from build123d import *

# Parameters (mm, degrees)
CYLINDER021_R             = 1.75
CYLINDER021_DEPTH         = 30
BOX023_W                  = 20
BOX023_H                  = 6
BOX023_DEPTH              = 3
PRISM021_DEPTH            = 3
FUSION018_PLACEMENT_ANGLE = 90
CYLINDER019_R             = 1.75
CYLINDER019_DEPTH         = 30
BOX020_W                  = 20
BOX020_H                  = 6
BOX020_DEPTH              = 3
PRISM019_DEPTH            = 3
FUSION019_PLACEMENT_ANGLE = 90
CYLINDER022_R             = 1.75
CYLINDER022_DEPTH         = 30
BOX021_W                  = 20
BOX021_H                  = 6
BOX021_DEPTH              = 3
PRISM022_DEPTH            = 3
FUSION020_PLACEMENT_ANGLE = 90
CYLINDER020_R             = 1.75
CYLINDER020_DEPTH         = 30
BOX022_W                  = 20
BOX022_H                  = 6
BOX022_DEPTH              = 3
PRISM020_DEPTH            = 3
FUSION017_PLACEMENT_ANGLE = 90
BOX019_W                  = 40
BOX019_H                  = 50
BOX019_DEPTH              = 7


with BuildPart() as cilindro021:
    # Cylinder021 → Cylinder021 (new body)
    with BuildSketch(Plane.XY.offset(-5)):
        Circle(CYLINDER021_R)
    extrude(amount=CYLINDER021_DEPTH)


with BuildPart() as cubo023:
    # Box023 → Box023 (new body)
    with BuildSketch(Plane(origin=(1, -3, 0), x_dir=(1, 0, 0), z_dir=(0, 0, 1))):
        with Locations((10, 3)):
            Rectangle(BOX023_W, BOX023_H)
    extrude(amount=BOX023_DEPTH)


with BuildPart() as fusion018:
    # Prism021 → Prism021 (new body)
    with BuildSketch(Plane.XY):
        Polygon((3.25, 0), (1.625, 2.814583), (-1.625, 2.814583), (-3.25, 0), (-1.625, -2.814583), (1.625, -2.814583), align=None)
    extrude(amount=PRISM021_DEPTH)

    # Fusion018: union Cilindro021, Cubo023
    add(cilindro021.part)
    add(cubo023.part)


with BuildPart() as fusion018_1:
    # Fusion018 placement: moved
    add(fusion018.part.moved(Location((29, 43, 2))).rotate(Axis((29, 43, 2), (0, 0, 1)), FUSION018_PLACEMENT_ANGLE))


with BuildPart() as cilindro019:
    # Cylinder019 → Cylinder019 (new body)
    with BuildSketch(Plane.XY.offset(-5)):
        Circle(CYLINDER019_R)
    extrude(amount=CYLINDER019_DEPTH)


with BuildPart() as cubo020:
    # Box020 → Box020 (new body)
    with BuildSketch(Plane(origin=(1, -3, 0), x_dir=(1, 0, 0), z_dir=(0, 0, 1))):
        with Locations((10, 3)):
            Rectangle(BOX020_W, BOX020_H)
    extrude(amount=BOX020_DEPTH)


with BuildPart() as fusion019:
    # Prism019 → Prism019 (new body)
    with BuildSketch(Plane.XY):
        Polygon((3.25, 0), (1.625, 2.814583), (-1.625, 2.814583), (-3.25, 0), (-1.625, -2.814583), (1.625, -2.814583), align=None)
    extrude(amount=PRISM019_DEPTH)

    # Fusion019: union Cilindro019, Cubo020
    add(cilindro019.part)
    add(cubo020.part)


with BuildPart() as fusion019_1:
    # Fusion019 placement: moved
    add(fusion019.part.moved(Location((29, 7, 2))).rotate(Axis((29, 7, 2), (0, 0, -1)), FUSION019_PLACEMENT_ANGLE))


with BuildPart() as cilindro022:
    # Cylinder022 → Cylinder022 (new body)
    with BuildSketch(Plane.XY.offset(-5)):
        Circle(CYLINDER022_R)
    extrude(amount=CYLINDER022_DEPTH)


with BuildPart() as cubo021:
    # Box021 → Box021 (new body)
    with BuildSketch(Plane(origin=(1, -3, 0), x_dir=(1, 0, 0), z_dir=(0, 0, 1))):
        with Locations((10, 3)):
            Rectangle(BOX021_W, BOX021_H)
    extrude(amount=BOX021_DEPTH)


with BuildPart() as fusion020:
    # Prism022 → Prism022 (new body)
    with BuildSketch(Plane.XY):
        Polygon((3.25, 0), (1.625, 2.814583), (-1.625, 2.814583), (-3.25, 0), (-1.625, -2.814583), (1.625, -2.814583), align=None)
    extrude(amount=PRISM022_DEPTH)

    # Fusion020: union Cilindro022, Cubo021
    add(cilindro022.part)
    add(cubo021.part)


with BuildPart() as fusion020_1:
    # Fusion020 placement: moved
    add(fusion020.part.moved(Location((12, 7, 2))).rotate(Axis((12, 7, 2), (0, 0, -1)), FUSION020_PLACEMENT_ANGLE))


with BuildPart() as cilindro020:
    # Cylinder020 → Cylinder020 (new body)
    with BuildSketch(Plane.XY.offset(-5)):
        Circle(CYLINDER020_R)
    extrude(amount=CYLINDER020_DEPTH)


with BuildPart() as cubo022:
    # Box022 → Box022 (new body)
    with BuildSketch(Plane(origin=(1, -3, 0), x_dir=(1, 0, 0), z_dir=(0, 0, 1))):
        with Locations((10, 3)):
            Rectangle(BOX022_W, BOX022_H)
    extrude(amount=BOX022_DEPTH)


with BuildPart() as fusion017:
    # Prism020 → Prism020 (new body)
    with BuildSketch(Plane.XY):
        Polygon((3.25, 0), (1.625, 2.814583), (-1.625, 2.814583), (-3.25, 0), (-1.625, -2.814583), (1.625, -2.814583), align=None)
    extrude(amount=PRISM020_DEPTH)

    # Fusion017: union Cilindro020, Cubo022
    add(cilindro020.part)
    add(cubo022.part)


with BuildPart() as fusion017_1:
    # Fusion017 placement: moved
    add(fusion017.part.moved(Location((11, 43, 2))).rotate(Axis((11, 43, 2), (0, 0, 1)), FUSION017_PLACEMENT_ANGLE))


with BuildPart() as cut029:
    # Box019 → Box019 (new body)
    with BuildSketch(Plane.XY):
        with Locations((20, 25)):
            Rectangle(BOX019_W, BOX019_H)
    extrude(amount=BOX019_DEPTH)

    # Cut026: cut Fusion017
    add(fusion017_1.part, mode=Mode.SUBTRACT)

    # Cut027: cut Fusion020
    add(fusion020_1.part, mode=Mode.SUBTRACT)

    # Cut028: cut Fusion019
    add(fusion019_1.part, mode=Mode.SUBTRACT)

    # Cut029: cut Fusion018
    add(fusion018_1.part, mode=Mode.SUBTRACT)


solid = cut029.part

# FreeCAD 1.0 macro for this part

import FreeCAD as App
import Part
import Sketcher
Q = App.Units.Quantity


def add_polygon(sketch, points):
    """Adds a closed chain of lines whose ends are joined by coincident constraints."""
    first, n = sketch.GeometryCount, len(points)
    for a, b in zip(points, points[1:] + points[:1]):
        sketch.addGeometry(Part.LineSegment(App.Vector(*a, 0), App.Vector(*b, 0)), False)
    for i in range(n):
        sketch.addConstraint(Sketcher.Constraint("Coincident", first + i, 2, first + (i + 1) % n, 1))

doc = App.newDocument("Part")
body = doc.addObject("PartDesign::Body", "Body")

# Sketch on XY plane
sketch1 = body.newObject("Sketcher::SketchObject", "Sketch")
sketch1.AttachmentSupport = (doc.getObject("XY_Plane"), [""])
sketch1.MapMode = "FlatFace"
sketch1.AttachmentOffset = App.Placement(App.Vector(0, 0, -5), App.Rotation())
sketch1.addGeometry(Part.Circle(App.Vector(0, 0, 0), App.Vector(0, 0, 1), 1.8), False)
sketch1.addConstraint(Sketcher.Constraint("Coincident", 0, 3, -1, 1))
sketch1.addConstraint(Sketcher.Constraint("Diameter", 0, 3.5))
pad1 = body.newObject("PartDesign::Pad", "Pad")
pad1.Profile = sketch1
pad1.Length = 30
body2 = doc.addObject("PartDesign::Body", "Body001")

# Sketch on XY plane
sketch2 = body2.newObject("Sketcher::SketchObject", "Sketch001")
sketch2.AttachmentSupport = (doc.getObject("XY_Plane001"), [""])
sketch2.MapMode = "FlatFace"
add_polygon(sketch2, [(1, 3), (1, -3), (21, -3), (21, 3)])  # lines 0-3
sketch2.addConstraint(Sketcher.Constraint("Vertical", 0))
sketch2.addConstraint(Sketcher.Constraint("Horizontal", 1))
sketch2.addConstraint(Sketcher.Constraint("Vertical", 2))
sketch2.addConstraint(Sketcher.Constraint("Horizontal", 3))
sketch2.addConstraint(Sketcher.Constraint("DistanceX", 1, 1, 1, 2, 20.0))
sketch2.addConstraint(Sketcher.Constraint("DistanceY", 0, 2, 0, 1, 6.0))
sketch2.addConstraint(Sketcher.Constraint("DistanceX", -1, 1, 0, 2, 1.0))
sketch2.addConstraint(Sketcher.Constraint("DistanceY", 0, 2, -1, 1, 3.0))
pad2 = body2.newObject("PartDesign::Pad", "Pad001")
pad2.Profile = sketch2
pad2.Length = 3
body3 = doc.addObject("PartDesign::Body", "Body002")

# Sketch on XY plane
sketch3 = body3.newObject("Sketcher::SketchObject", "Sketch002")
sketch3.AttachmentSupport = (doc.getObject("XY_Plane002"), [""])
sketch3.MapMode = "FlatFace"
add_polygon(sketch3, [(3.2, 0), (1.6, 2.8), (-1.6, 2.8), (-3.2, 0), (-1.6, -2.8), (1.6, -2.8)])  # lines 0-5
sketch3.addConstraint(Sketcher.Constraint("Horizontal", 1))
sketch3.addConstraint(Sketcher.Constraint("Horizontal", 4))
sketch3.addConstraint(Sketcher.Constraint("Symmetric", 0, 2, 3, 2, -1, 1))
sketch3.addConstraint(Sketcher.Constraint("Symmetric", 2, 2, 5, 2, -1, 1))
sketch3.addConstraint(Sketcher.Constraint("PointOnObject", 2, 2, -1))
sketch3.addConstraint(Sketcher.Constraint("Parallel", 2, 5))
sketch3.addConstraint(Sketcher.Constraint("Vertical", 1, 2, 3, 2))
sketch3.addConstraint(Sketcher.Constraint("Angle", 0, Q("119.999996 deg")))
sketch3.addConstraint(Sketcher.Constraint("DistanceX", 1, 2, 1, 1, 3.25))
sketch3.addConstraint(Sketcher.Constraint("DistanceX", 2, 2, 5, 2, 6.5))
pad3 = body3.newObject("PartDesign::Pad", "Pad002")
pad3.Profile = sketch3
pad3.Length = 3
doc.recompute()

boolean = body3.newObject("PartDesign::Boolean", "Boolean")
boolean.Type = "Fuse"
boolean.addObjects([body])
doc.recompute()

boolean2 = body3.newObject("PartDesign::Boolean", "Boolean001")
boolean2.Type = "Fuse"
boolean2.addObjects([body2])
body4 = doc.addObject("PartDesign::Body", "Body003")
doc.recompute()

body3.Placement = App.Placement(App.Vector(29, 43, 2), App.Rotation(App.Vector(0, 0, 1), 90))
boolean3 = body4.newObject("PartDesign::Boolean", "Boolean002")
boolean3.Type = "Fuse"
boolean3.addObjects([body3])
body5 = doc.addObject("PartDesign::Body", "Body004")

# Sketch on XY plane
sketch4 = body5.newObject("Sketcher::SketchObject", "Sketch003")
sketch4.AttachmentSupport = (doc.getObject("XY_Plane004"), [""])
sketch4.MapMode = "FlatFace"
sketch4.AttachmentOffset = App.Placement(App.Vector(0, 0, -5), App.Rotation())
sketch4.addGeometry(Part.Circle(App.Vector(0, 0, 0), App.Vector(0, 0, 1), 1.8), False)
sketch4.addConstraint(Sketcher.Constraint("Coincident", 0, 3, -1, 1))
sketch4.addConstraint(Sketcher.Constraint("Diameter", 0, 3.5))
pad4 = body5.newObject("PartDesign::Pad", "Pad003")
pad4.Profile = sketch4
pad4.Length = 30
body6 = doc.addObject("PartDesign::Body", "Body005")

# Sketch on XY plane
sketch5 = body6.newObject("Sketcher::SketchObject", "Sketch004")
sketch5.AttachmentSupport = (doc.getObject("XY_Plane005"), [""])
sketch5.MapMode = "FlatFace"
add_polygon(sketch5, [(1, 3), (1, -3), (21, -3), (21, 3)])  # lines 0-3
sketch5.addConstraint(Sketcher.Constraint("Vertical", 0))
sketch5.addConstraint(Sketcher.Constraint("Horizontal", 1))
sketch5.addConstraint(Sketcher.Constraint("Vertical", 2))
sketch5.addConstraint(Sketcher.Constraint("Horizontal", 3))
sketch5.addConstraint(Sketcher.Constraint("DistanceX", 1, 1, 1, 2, 20.0))
sketch5.addConstraint(Sketcher.Constraint("DistanceY", 0, 2, 0, 1, 6.0))
sketch5.addConstraint(Sketcher.Constraint("DistanceX", -1, 1, 0, 2, 1.0))
sketch5.addConstraint(Sketcher.Constraint("DistanceY", 0, 2, -1, 1, 3.0))
pad5 = body6.newObject("PartDesign::Pad", "Pad004")
pad5.Profile = sketch5
pad5.Length = 3
body7 = doc.addObject("PartDesign::Body", "Body006")

# Sketch on XY plane
sketch6 = body7.newObject("Sketcher::SketchObject", "Sketch005")
sketch6.AttachmentSupport = (doc.getObject("XY_Plane006"), [""])
sketch6.MapMode = "FlatFace"
add_polygon(sketch6, [(3.2, 0), (1.6, 2.8), (-1.6, 2.8), (-3.2, 0), (-1.6, -2.8), (1.6, -2.8)])  # lines 0-5
sketch6.addConstraint(Sketcher.Constraint("Horizontal", 1))
sketch6.addConstraint(Sketcher.Constraint("Horizontal", 4))
sketch6.addConstraint(Sketcher.Constraint("Symmetric", 0, 2, 3, 2, -1, 1))
sketch6.addConstraint(Sketcher.Constraint("Symmetric", 2, 2, 5, 2, -1, 1))
sketch6.addConstraint(Sketcher.Constraint("PointOnObject", 2, 2, -1))
sketch6.addConstraint(Sketcher.Constraint("Parallel", 2, 5))
sketch6.addConstraint(Sketcher.Constraint("Vertical", 1, 2, 3, 2))
sketch6.addConstraint(Sketcher.Constraint("Angle", 0, Q("119.999996 deg")))
sketch6.addConstraint(Sketcher.Constraint("DistanceX", 1, 2, 1, 1, 3.25))
sketch6.addConstraint(Sketcher.Constraint("DistanceX", 2, 2, 5, 2, 6.5))
pad6 = body7.newObject("PartDesign::Pad", "Pad005")
pad6.Profile = sketch6
pad6.Length = 3
doc.recompute()

boolean4 = body7.newObject("PartDesign::Boolean", "Boolean003")
boolean4.Type = "Fuse"
boolean4.addObjects([body5])
doc.recompute()

boolean5 = body7.newObject("PartDesign::Boolean", "Boolean004")
boolean5.Type = "Fuse"
boolean5.addObjects([body6])
body8 = doc.addObject("PartDesign::Body", "Body007")
doc.recompute()

body7.Placement = App.Placement(App.Vector(29, 7, 2), App.Rotation(App.Vector(0, 0, -1), 90))
boolean6 = body8.newObject("PartDesign::Boolean", "Boolean005")
boolean6.Type = "Fuse"
boolean6.addObjects([body7])
body9 = doc.addObject("PartDesign::Body", "Body008")

# Sketch on XY plane
sketch7 = body9.newObject("Sketcher::SketchObject", "Sketch006")
sketch7.AttachmentSupport = (doc.getObject("XY_Plane008"), [""])
sketch7.MapMode = "FlatFace"
sketch7.AttachmentOffset = App.Placement(App.Vector(0, 0, -5), App.Rotation())
sketch7.addGeometry(Part.Circle(App.Vector(0, 0, 0), App.Vector(0, 0, 1), 1.8), False)
sketch7.addConstraint(Sketcher.Constraint("Coincident", 0, 3, -1, 1))
sketch7.addConstraint(Sketcher.Constraint("Diameter", 0, 3.5))
pad7 = body9.newObject("PartDesign::Pad", "Pad006")
pad7.Profile = sketch7
pad7.Length = 30
body10 = doc.addObject("PartDesign::Body", "Body009")

# Sketch on XY plane
sketch8 = body10.newObject("Sketcher::SketchObject", "Sketch007")
sketch8.AttachmentSupport = (doc.getObject("XY_Plane009"), [""])
sketch8.MapMode = "FlatFace"
add_polygon(sketch8, [(1, 3), (1, -3), (21, -3), (21, 3)])  # lines 0-3
sketch8.addConstraint(Sketcher.Constraint("Vertical", 0))
sketch8.addConstraint(Sketcher.Constraint("Horizontal", 1))
sketch8.addConstraint(Sketcher.Constraint("Vertical", 2))
sketch8.addConstraint(Sketcher.Constraint("Horizontal", 3))
sketch8.addConstraint(Sketcher.Constraint("DistanceX", 1, 1, 1, 2, 20.0))
sketch8.addConstraint(Sketcher.Constraint("DistanceY", 0, 2, 0, 1, 6.0))
sketch8.addConstraint(Sketcher.Constraint("DistanceX", -1, 1, 0, 2, 1.0))
sketch8.addConstraint(Sketcher.Constraint("DistanceY", 0, 2, -1, 1, 3.0))
pad8 = body10.newObject("PartDesign::Pad", "Pad007")
pad8.Profile = sketch8
pad8.Length = 3
body11 = doc.addObject("PartDesign::Body", "Body010")

# Sketch on XY plane
sketch9 = body11.newObject("Sketcher::SketchObject", "Sketch008")
sketch9.AttachmentSupport = (doc.getObject("XY_Plane010"), [""])
sketch9.MapMode = "FlatFace"
add_polygon(sketch9, [(3.2, 0), (1.6, 2.8), (-1.6, 2.8), (-3.2, 0), (-1.6, -2.8), (1.6, -2.8)])  # lines 0-5
sketch9.addConstraint(Sketcher.Constraint("Horizontal", 1))
sketch9.addConstraint(Sketcher.Constraint("Horizontal", 4))
sketch9.addConstraint(Sketcher.Constraint("Symmetric", 0, 2, 3, 2, -1, 1))
sketch9.addConstraint(Sketcher.Constraint("Symmetric", 2, 2, 5, 2, -1, 1))
sketch9.addConstraint(Sketcher.Constraint("PointOnObject", 2, 2, -1))
sketch9.addConstraint(Sketcher.Constraint("Parallel", 2, 5))
sketch9.addConstraint(Sketcher.Constraint("Vertical", 1, 2, 3, 2))
sketch9.addConstraint(Sketcher.Constraint("Angle", 0, Q("119.999996 deg")))
sketch9.addConstraint(Sketcher.Constraint("DistanceX", 1, 2, 1, 1, 3.25))
sketch9.addConstraint(Sketcher.Constraint("DistanceX", 2, 2, 5, 2, 6.5))
pad9 = body11.newObject("PartDesign::Pad", "Pad008")
pad9.Profile = sketch9
pad9.Length = 3
doc.recompute()

boolean7 = body11.newObject("PartDesign::Boolean", "Boolean006")
boolean7.Type = "Fuse"
boolean7.addObjects([body9])
doc.recompute()

boolean8 = body11.newObject("PartDesign::Boolean", "Boolean007")
boolean8.Type = "Fuse"
boolean8.addObjects([body10])
body12 = doc.addObject("PartDesign::Body", "Body011")
doc.recompute()

body11.Placement = App.Placement(App.Vector(12, 7, 2), App.Rotation(App.Vector(0, 0, -1), 90))
boolean9 = body12.newObject("PartDesign::Boolean", "Boolean008")
boolean9.Type = "Fuse"
boolean9.addObjects([body11])
body13 = doc.addObject("PartDesign::Body", "Body012")

# Sketch on XY plane
sketch10 = body13.newObject("Sketcher::SketchObject", "Sketch009")
sketch10.AttachmentSupport = (doc.getObject("XY_Plane012"), [""])
sketch10.MapMode = "FlatFace"
sketch10.AttachmentOffset = App.Placement(App.Vector(0, 0, -5), App.Rotation())
sketch10.addGeometry(Part.Circle(App.Vector(0, 0, 0), App.Vector(0, 0, 1), 1.8), False)
sketch10.addConstraint(Sketcher.Constraint("Coincident", 0, 3, -1, 1))
sketch10.addConstraint(Sketcher.Constraint("Diameter", 0, 3.5))
pad10 = body13.newObject("PartDesign::Pad", "Pad009")
pad10.Profile = sketch10
pad10.Length = 30
body14 = doc.addObject("PartDesign::Body", "Body013")

# Sketch on XY plane
sketch11 = body14.newObject("Sketcher::SketchObject", "Sketch010")
sketch11.AttachmentSupport = (doc.getObject("XY_Plane013"), [""])
sketch11.MapMode = "FlatFace"
add_polygon(sketch11, [(1, 3), (1, -3), (21, -3), (21, 3)])  # lines 0-3
sketch11.addConstraint(Sketcher.Constraint("Vertical", 0))
sketch11.addConstraint(Sketcher.Constraint("Horizontal", 1))
sketch11.addConstraint(Sketcher.Constraint("Vertical", 2))
sketch11.addConstraint(Sketcher.Constraint("Horizontal", 3))
sketch11.addConstraint(Sketcher.Constraint("DistanceX", 1, 1, 1, 2, 20.0))
sketch11.addConstraint(Sketcher.Constraint("DistanceY", 0, 2, 0, 1, 6.0))
sketch11.addConstraint(Sketcher.Constraint("DistanceX", -1, 1, 0, 2, 1.0))
sketch11.addConstraint(Sketcher.Constraint("DistanceY", 0, 2, -1, 1, 3.0))
pad11 = body14.newObject("PartDesign::Pad", "Pad010")
pad11.Profile = sketch11
pad11.Length = 3
body15 = doc.addObject("PartDesign::Body", "Body014")

# Sketch on XY plane
sketch12 = body15.newObject("Sketcher::SketchObject", "Sketch011")
sketch12.AttachmentSupport = (doc.getObject("XY_Plane014"), [""])
sketch12.MapMode = "FlatFace"
add_polygon(sketch12, [(3.2, 0), (1.6, 2.8), (-1.6, 2.8), (-3.2, 0), (-1.6, -2.8), (1.6, -2.8)])  # lines 0-5
sketch12.addConstraint(Sketcher.Constraint("Horizontal", 1))
sketch12.addConstraint(Sketcher.Constraint("Horizontal", 4))
sketch12.addConstraint(Sketcher.Constraint("Symmetric", 0, 2, 3, 2, -1, 1))
sketch12.addConstraint(Sketcher.Constraint("Symmetric", 2, 2, 5, 2, -1, 1))
sketch12.addConstraint(Sketcher.Constraint("PointOnObject", 2, 2, -1))
sketch12.addConstraint(Sketcher.Constraint("Parallel", 2, 5))
sketch12.addConstraint(Sketcher.Constraint("Vertical", 1, 2, 3, 2))
sketch12.addConstraint(Sketcher.Constraint("Angle", 0, Q("119.999996 deg")))
sketch12.addConstraint(Sketcher.Constraint("DistanceX", 1, 2, 1, 1, 3.25))
sketch12.addConstraint(Sketcher.Constraint("DistanceX", 2, 2, 5, 2, 6.5))
pad12 = body15.newObject("PartDesign::Pad", "Pad011")
pad12.Profile = sketch12
pad12.Length = 3
doc.recompute()

boolean10 = body15.newObject("PartDesign::Boolean", "Boolean009")
boolean10.Type = "Fuse"
boolean10.addObjects([body13])
doc.recompute()

boolean11 = body15.newObject("PartDesign::Boolean", "Boolean010")
boolean11.Type = "Fuse"
boolean11.addObjects([body14])
body16 = doc.addObject("PartDesign::Body", "Body015")
doc.recompute()

body15.Placement = App.Placement(App.Vector(11, 43, 2), App.Rotation(App.Vector(0, 0, 1), 90))
boolean12 = body16.newObject("PartDesign::Boolean", "Boolean011")
boolean12.Type = "Fuse"
boolean12.addObjects([body15])
body17 = doc.addObject("PartDesign::Body", "Body016")

# Sketch on XY plane
sketch13 = body17.newObject("Sketcher::SketchObject", "Sketch012")
sketch13.AttachmentSupport = (doc.getObject("XY_Plane016"), [""])
sketch13.MapMode = "FlatFace"
add_polygon(sketch13, [(0, 50), (0, 0), (40, 0), (40, 50)])  # lines 0-3
sketch13.addConstraint(Sketcher.Constraint("Vertical", 0))
sketch13.addConstraint(Sketcher.Constraint("Horizontal", 1))
sketch13.addConstraint(Sketcher.Constraint("Vertical", 2))
sketch13.addConstraint(Sketcher.Constraint("Horizontal", 3))
sketch13.addConstraint(Sketcher.Constraint("Coincident", 0, 2, -1, 1))
sketch13.addConstraint(Sketcher.Constraint("DistanceX", 1, 1, 1, 2, 40.0))
sketch13.addConstraint(Sketcher.Constraint("DistanceY", 0, 2, 0, 1, 50.0))
pad13 = body17.newObject("PartDesign::Pad", "Pad012")
pad13.Profile = sketch13
pad13.Length = 7
doc.recompute()

boolean13 = body17.newObject("PartDesign::Boolean", "Boolean012")
boolean13.Type = "Cut"
boolean13.addObjects([body16])
doc.recompute()

boolean14 = body17.newObject("PartDesign::Boolean", "Boolean013")
boolean14.Type = "Cut"
boolean14.addObjects([body12])
doc.recompute()

boolean15 = body17.newObject("PartDesign::Boolean", "Boolean014")
boolean15.Type = "Cut"
boolean15.addObjects([body8])
doc.recompute()

boolean16 = body17.newObject("PartDesign::Boolean", "Boolean015")
boolean16.Type = "Cut"
boolean16.addObjects([body4])

doc.recompute()
